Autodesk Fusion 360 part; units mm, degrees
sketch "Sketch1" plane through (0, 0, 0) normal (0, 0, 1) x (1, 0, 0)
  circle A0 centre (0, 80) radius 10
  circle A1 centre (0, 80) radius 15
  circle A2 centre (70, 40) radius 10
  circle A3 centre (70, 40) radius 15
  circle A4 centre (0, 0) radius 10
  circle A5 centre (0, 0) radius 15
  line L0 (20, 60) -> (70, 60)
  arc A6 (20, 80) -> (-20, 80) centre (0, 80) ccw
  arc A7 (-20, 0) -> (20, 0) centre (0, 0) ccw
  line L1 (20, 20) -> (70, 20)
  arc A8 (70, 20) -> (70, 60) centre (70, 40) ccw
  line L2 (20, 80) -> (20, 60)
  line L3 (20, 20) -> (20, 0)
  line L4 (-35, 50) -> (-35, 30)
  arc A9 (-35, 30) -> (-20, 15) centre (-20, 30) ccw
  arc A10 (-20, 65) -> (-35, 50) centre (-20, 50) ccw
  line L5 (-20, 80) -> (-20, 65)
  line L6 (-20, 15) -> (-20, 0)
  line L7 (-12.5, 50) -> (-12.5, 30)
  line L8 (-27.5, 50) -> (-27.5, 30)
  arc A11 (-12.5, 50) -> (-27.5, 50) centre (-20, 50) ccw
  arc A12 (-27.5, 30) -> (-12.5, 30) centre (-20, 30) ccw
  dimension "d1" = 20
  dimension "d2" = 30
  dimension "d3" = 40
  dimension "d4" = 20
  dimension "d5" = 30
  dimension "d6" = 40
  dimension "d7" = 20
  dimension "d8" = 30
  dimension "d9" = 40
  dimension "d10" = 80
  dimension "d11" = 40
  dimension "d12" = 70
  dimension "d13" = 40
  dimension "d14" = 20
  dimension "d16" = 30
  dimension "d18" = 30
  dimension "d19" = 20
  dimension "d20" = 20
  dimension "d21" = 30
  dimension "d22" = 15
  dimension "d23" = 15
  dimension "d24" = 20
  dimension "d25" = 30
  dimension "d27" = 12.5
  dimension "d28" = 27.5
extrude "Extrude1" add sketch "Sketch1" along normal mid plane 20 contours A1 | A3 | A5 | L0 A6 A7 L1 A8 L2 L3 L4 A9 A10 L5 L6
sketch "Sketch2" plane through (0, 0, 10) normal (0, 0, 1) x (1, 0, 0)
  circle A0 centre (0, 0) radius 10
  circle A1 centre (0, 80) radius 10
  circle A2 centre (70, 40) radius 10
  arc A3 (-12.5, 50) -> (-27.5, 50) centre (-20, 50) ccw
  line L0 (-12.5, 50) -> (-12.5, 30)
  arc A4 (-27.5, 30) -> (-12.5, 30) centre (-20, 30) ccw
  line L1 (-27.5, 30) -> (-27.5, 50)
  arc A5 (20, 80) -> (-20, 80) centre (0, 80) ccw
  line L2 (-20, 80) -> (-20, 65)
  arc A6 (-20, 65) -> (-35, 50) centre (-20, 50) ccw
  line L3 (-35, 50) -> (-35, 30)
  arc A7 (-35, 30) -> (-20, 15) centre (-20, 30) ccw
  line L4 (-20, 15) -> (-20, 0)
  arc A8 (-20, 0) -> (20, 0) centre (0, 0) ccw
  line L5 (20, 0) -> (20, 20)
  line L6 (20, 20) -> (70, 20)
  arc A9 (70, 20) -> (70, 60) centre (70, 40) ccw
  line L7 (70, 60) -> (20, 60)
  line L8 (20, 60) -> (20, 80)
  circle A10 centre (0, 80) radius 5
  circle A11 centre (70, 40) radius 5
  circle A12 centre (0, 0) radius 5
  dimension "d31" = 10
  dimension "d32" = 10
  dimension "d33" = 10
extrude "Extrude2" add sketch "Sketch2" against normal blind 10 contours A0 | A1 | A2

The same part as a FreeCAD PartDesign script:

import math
import FreeCAD as App
import Part
import Sketcher

V = App.Vector
Q = App.Units.Quantity

doc = App.newDocument("Part")
body = doc.addObject("PartDesign::Body", "Body")

# Sketch on XY plane
sketch1 = body.newObject("Sketcher::SketchObject", "Sketch")
sketch1.AttachmentSupport = (doc.getObject("XY_Plane"), [""])
sketch1.MapMode = "FlatFace"
sketch1.addGeometry(Part.LineSegment(V(70, 60, 0), V(20, 60, 0)), False)
sketch1.addGeometry(Part.LineSegment(V(20, 60, 0), V(20, 80, 0)), False)
sketch1.addGeometry(Part.ArcOfCircle(Part.Circle(V(0, 80, 0), V(0, 0, 1), 20), math.radians(0), math.radians(180)), False)
sketch1.addGeometry(Part.LineSegment(V(-20, 80, 0), V(-20, 65, 0)), False)
sketch1.addGeometry(Part.ArcOfCircle(Part.Circle(V(-20, 50, 0), V(0, 0, 1), 15), math.radians(90), math.radians(180)), False)
sketch1.addGeometry(Part.LineSegment(V(-35, 50, 0), V(-35, 30, 0)), False)
sketch1.addGeometry(Part.ArcOfCircle(Part.Circle(V(-20, 30, 0), V(0, 0, 1), 15), math.radians(180), math.radians(270)), False)
sketch1.addGeometry(Part.LineSegment(V(-20, 15, 0), V(-20, 0, 0)), False)
sketch1.addGeometry(Part.ArcOfCircle(Part.Circle(V(0, 0, 0), V(0, 0, 1), 20), math.radians(180), math.radians(360)), False)
sketch1.addGeometry(Part.LineSegment(V(20, 0, 0), V(20, 20, 0)), False)
sketch1.addGeometry(Part.LineSegment(V(20, 20, 0), V(70, 20, 0)), False)
sketch1.addGeometry(Part.ArcOfCircle(Part.Circle(V(70, 40, 0), V(0, 0, 1), 20), math.radians(-90), math.radians(90)), False)
sketch1.addGeometry(Part.Circle(V(0, 80, 0), V(0, 0, 1), 10), False)
sketch1.addGeometry(Part.ArcOfCircle(Part.Circle(V(-20, 50, 0), V(0, 0, 1), 8), math.radians(0), math.radians(180)), False)
sketch1.addGeometry(Part.LineSegment(V(-12, 50, 0), V(-12, 30, 0)), False)
sketch1.addGeometry(Part.ArcOfCircle(Part.Circle(V(-20, 30, 0), V(0, 0, 1), 8), math.radians(180), math.radians(360)), False)
sketch1.addGeometry(Part.LineSegment(V(-28, 30, 0), V(-28, 50, 0)), False)
sketch1.addGeometry(Part.Circle(V(0, 0, 0), V(0, 0, 1), 10), False)
sketch1.addGeometry(Part.Circle(V(70, 40, 0), V(0, 0, 1), 10), False)
sketch1.addConstraint(Sketcher.Constraint("Coincident", 0, 2, 1, 1))
sketch1.addConstraint(Sketcher.Constraint("Tangent", 1, 2, 2, 1))
sketch1.addConstraint(Sketcher.Constraint("Tangent", 2, 2, 3, 1))
sketch1.addConstraint(Sketcher.Constraint("Coincident", 3, 2, 4, 1))
sketch1.addConstraint(Sketcher.Constraint("Tangent", 4, 2, 5, 1))
sketch1.addConstraint(Sketcher.Constraint("Tangent", 5, 2, 6, 1))
sketch1.addConstraint(Sketcher.Constraint("Coincident", 6, 2, 7, 1))
sketch1.addConstraint(Sketcher.Constraint("Tangent", 7, 2, 8, 1))
sketch1.addConstraint(Sketcher.Constraint("Tangent", 8, 2, 9, 1))
sketch1.addConstraint(Sketcher.Constraint("Coincident", 9, 2, 10, 1))
sketch1.addConstraint(Sketcher.Constraint("Tangent", 10, 2, 11, 1))
sketch1.addConstraint(Sketcher.Constraint("Tangent", 11, 2, 0, 1))
sketch1.addConstraint(Sketcher.Constraint("Tangent", 13, 1, 14, 1))
sketch1.addConstraint(Sketcher.Constraint("Tangent", 14, 2, 15, 2))
sketch1.addConstraint(Sketcher.Constraint("Tangent", 15, 1, 16, 1))
sketch1.addConstraint(Sketcher.Constraint("Tangent", 16, 2, 13, 2))
sketch1.addConstraint(Sketcher.Constraint("Horizontal", 0))
sketch1.addConstraint(Sketcher.Constraint("Vertical", 1))
sketch1.addConstraint(Sketcher.Constraint("Vertical", 3))
sketch1.addConstraint(Sketcher.Constraint("Vertical", 5))
sketch1.addConstraint(Sketcher.Constraint("Vertical", 7))
sketch1.addConstraint(Sketcher.Constraint("Vertical", 9))
sketch1.addConstraint(Sketcher.Constraint("Horizontal", 10))
sketch1.addConstraint(Sketcher.Constraint("Vertical", 14))
sketch1.addConstraint(Sketcher.Constraint("Vertical", 16))
sketch1.addConstraint(Sketcher.Constraint("Coincident", 8, 3, -1, 1))
sketch1.addConstraint(Sketcher.Constraint("Coincident", 17, 3, -1, 1))
sketch1.addConstraint(Sketcher.Constraint("Coincident", 12, 3, 2, 3))
sketch1.addConstraint(Sketcher.Constraint("Coincident", 13, 3, 4, 3))
sketch1.addConstraint(Sketcher.Constraint("Coincident", 15, 3, 6, 3))
sketch1.addConstraint(Sketcher.Constraint("Coincident", 18, 3, 11, 3))
sketch1.addConstraint(Sketcher.Constraint("Equal", 2, 8))
sketch1.addConstraint(Sketcher.Constraint("Equal", 8, 11))
sketch1.addConstraint(Sketcher.Constraint("Equal", 12, 17))
sketch1.addConstraint(Sketcher.Constraint("Equal", 17, 18))
sketch1.addConstraint(Sketcher.Constraint("PointOnObject", 2, 3, -2))
sketch1.addConstraint(Sketcher.Constraint("Vertical", 15, 3, 2, 2))
sketch1.addConstraint(Sketcher.Constraint("Equal", 1, 5))
sketch1.addConstraint(Sketcher.Constraint("Equal", 3, 7))
sketch1.addConstraint(Sketcher.Constraint("Equal", 5, 9))
sketch1.addConstraint(Sketcher.Constraint("Diameter", 12, Q("20 mm")))
sketch1.addConstraint(Sketcher.Constraint("Radius", 2, Q("20 mm")))
sketch1.addConstraint(Sketcher.Constraint("Radius", 4, Q("15 mm")))
sketch1.addConstraint(Sketcher.Constraint("Radius", 13, Q("7.5 mm")))
sketch1.addConstraint(Sketcher.Constraint("DistanceY", 1, 1, 1, 2, Q("20 mm")))
sketch1.addConstraint(Sketcher.Constraint("DistanceX", -1, 1, 11, 3, Q("70 mm")))
pad1 = body.newObject("PartDesign::Pad", "Pad")
pad1.Profile = sketch1
pad1.Length = 20
pad1.Midplane = True

# Sketch on XY plane
sketch2 = body.newObject("Sketcher::SketchObject", "Sketch001")
sketch2.AttachmentSupport = (doc.getObject("XY_Plane"), [""])
sketch2.MapMode = "FlatFace"
sketch2.AttachmentOffset = App.Placement(V(0, 0, 10), App.Rotation())
sketch2.addGeometry(Part.Circle(V(0, 0, 0), V(0, 0, 1), 10), False)
sketch2.addGeometry(Part.Circle(V(0, 0, 0), V(0, 0, 1), 5), False)
sketch2.addGeometry(Part.Circle(V(0, 80, 0), V(0, 0, 1), 10), False)
sketch2.addGeometry(Part.Circle(V(0, 80, 0), V(0, 0, 1), 5), False)
sketch2.addGeometry(Part.Circle(V(70, 40, 0), V(0, 0, 1), 10), False)
sketch2.addGeometry(Part.Circle(V(70, 40, 0), V(0, 0, 1), 5), False)
sketch2.addConstraint(Sketcher.Constraint("Coincident", 0, 3, -1, 1))
sketch2.addConstraint(Sketcher.Constraint("Coincident", 1, 3, -1, 1))
sketch2.addConstraint(Sketcher.Constraint("Coincident", 3, 3, 2, 3))
sketch2.addConstraint(Sketcher.Constraint("Coincident", 5, 3, 4, 3))
sketch2.addConstraint(Sketcher.Constraint("Equal", 0, 2))
sketch2.addConstraint(Sketcher.Constraint("Equal", 1, 3))
sketch2.addConstraint(Sketcher.Constraint("Equal", 2, 4))
sketch2.addConstraint(Sketcher.Constraint("Equal", 3, 5))
sketch2.addConstraint(Sketcher.Constraint("PointOnObject", 2, 3, -2))
sketch2.addConstraint(Sketcher.Constraint("Diameter", 0, Q("20 mm")))
sketch2.addConstraint(Sketcher.Constraint("Diameter", 1, Q("10 mm")))
sketch2.addConstraint(Sketcher.Constraint("DistanceY", -1, 1, 2, 3, Q("80 mm")))
sketch2.addConstraint(Sketcher.Constraint("DistanceX", -1, 1, 4, 3, Q("70 mm")))
sketch2.addConstraint(Sketcher.Constraint("DistanceY", -1, 1, 4, 3, Q("40 mm")))
pad2 = body.newObject("PartDesign::Pad", "Pad001")
pad2.Profile = sketch2
pad2.Length = 10
pad2.Reversed = True

doc.recompute()
